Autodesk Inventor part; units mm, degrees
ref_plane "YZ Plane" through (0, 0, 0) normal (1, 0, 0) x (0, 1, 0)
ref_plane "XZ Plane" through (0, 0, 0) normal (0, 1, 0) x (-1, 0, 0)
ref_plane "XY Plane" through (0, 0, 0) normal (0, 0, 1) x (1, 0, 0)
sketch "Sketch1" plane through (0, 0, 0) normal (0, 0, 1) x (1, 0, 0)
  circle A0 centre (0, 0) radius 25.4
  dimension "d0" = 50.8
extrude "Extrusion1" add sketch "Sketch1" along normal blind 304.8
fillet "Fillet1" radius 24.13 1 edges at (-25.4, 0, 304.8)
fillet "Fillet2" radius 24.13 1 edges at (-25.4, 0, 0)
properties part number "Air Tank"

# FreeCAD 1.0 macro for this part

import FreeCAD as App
import Part
import Sketcher
from FreeCAD import Vector
Q = App.Units.Quantity


def edges_at(feature, points):
    """Names of the edges that pass closest to the given points."""
    edges = feature.Shape.Edges
    near = lambda p: min(range(len(edges)), key=lambda i: edges[i].distToShape(Part.Vertex(*p))[0])
    return sorted({f"Edge{near(p) + 1}" for p in points})

doc = App.newDocument("Part")
body = doc.addObject("PartDesign::Body", "Body")

# Sketch on XY plane
sketch1 = body.newObject("Sketcher::SketchObject", "Sketch")
sketch1.AttachmentSupport = (doc.getObject("XY_Plane"), [""])
sketch1.MapMode = "FlatFace"
sketch1.addGeometry(Part.Circle(Vector(0, 0, 0), Vector(0, 0, 1), 25.4), False)
sketch1.addConstraint(Sketcher.Constraint("Coincident", 0, 3, -1, 1))
sketch1.addConstraint(Sketcher.Constraint("Diameter", 0, Q("2 in")))
pad1 = body.newObject("PartDesign::Pad", "Pad")
pad1.Profile = sketch1
pad1.Length = Q("12 in")
doc.recompute()

fillet = body.newObject("PartDesign::Fillet", "Fillet")
fillet.Base = (pad1, edges_at(pad1, [(-25.4, 0, 304.8)]))
fillet.Radius = Q("0.95 in")
doc.recompute()

fillet2 = body.newObject("PartDesign::Fillet", "Fillet001")
fillet2.Base = (fillet, edges_at(fillet, [(-25.4, 0, 0)]))
fillet2.Radius = Q("0.95 in")

doc.recompute()
